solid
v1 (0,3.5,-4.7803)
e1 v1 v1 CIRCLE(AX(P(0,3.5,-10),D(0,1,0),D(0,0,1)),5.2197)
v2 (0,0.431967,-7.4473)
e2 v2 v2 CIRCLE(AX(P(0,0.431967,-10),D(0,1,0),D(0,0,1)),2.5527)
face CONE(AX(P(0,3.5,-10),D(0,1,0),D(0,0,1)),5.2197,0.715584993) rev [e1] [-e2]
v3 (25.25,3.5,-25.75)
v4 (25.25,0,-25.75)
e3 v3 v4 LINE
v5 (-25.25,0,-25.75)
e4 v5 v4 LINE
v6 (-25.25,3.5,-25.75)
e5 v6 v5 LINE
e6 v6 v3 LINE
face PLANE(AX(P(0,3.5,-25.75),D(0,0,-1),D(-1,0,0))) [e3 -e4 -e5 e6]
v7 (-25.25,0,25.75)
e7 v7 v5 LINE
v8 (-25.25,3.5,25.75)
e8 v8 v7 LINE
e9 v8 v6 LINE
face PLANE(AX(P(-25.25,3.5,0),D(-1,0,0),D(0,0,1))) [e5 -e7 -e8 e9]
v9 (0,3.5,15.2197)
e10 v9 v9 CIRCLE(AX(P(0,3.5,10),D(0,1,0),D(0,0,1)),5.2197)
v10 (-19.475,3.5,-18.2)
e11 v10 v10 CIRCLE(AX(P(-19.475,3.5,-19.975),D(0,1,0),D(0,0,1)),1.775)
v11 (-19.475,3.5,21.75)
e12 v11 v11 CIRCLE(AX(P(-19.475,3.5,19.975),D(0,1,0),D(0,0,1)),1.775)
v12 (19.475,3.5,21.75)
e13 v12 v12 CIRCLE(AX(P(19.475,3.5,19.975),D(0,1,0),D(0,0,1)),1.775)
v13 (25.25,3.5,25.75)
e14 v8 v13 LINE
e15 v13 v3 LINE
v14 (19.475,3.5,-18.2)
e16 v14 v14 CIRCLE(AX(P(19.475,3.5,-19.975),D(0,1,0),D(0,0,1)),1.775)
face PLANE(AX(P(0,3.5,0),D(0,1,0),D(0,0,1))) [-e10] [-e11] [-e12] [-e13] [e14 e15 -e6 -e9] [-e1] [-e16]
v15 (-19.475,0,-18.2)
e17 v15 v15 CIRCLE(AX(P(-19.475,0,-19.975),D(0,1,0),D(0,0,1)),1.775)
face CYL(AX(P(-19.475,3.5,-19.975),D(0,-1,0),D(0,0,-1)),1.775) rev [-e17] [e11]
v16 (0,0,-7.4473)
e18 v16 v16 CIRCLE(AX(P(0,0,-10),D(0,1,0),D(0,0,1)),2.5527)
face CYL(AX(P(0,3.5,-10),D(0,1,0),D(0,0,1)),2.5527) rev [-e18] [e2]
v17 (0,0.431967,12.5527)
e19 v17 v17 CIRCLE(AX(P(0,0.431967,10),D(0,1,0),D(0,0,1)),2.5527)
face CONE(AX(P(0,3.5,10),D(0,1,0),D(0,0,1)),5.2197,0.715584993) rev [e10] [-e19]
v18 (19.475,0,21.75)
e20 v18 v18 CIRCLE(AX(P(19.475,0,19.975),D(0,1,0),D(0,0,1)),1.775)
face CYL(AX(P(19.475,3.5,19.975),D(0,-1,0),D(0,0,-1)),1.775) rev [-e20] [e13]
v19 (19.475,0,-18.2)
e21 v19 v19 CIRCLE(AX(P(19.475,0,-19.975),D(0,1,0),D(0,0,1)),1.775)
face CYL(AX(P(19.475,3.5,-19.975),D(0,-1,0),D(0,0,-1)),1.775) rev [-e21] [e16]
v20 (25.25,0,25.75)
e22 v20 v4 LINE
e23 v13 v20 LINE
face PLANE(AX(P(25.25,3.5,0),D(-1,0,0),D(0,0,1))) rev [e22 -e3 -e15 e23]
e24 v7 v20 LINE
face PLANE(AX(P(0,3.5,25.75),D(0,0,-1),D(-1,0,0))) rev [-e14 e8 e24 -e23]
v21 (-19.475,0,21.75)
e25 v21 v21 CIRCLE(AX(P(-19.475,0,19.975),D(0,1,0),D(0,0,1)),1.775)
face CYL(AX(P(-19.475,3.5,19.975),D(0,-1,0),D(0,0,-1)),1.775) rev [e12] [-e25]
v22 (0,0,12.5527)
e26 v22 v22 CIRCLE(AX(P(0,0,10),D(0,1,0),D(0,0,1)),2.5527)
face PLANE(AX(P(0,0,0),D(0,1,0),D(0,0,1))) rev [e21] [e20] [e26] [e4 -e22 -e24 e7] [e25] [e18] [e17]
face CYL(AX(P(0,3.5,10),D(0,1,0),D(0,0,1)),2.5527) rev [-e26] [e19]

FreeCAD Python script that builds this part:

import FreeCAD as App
import Part
import Sketcher
from FreeCAD import Vector
Q = App.Units.Quantity

doc = App.newDocument("Part")
body = doc.addObject("PartDesign::Body", "Body")

# Sketch on XZ plane
sketch1 = body.newObject("Sketcher::SketchObject", "Sketch")
sketch1.AttachmentSupport = (doc.getObject("XZ_Plane"), [""])
sketch1.MapMode = "FlatFace"
sketch1.addGeometry(Part.LineSegment(Vector(-25.25, -25.75, 0), Vector(-25.25, 25.75, 0)), False)
sketch1.addGeometry(Part.LineSegment(Vector(-25.25, 25.75, 0), Vector(25.25, 25.75, 0)), False)
sketch1.addGeometry(Part.LineSegment(Vector(25.25, 25.75, 0), Vector(25.25, -25.75, 0)), False)
sketch1.addGeometry(Part.LineSegment(Vector(25.25, -25.75, 0), Vector(-25.25, -25.75, 0)), False)
sketch1.addGeometry(Part.Circle(Vector(-19.475, 19.975, 0), Vector(0, 0, 1), 1.775), False)
sketch1.addGeometry(Part.Circle(Vector(19.475, 19.975, 0), Vector(0, 0, 1), 1.775), False)
sketch1.addGeometry(Part.Circle(Vector(-19.475, -19.975, 0), Vector(0, 0, 1), 1.775), False)
sketch1.addGeometry(Part.Circle(Vector(19.475, -19.975, 0), Vector(0, 0, 1), 1.775), False)
sketch1.addConstraint(Sketcher.Constraint("Coincident", 0, 2, 1, 1))
sketch1.addConstraint(Sketcher.Constraint("Coincident", 1, 2, 2, 1))
sketch1.addConstraint(Sketcher.Constraint("Coincident", 2, 2, 3, 1))
sketch1.addConstraint(Sketcher.Constraint("Coincident", 3, 2, 0, 1))
sketch1.addConstraint(Sketcher.Constraint("Vertical", 0))
sketch1.addConstraint(Sketcher.Constraint("Horizontal", 1))
sketch1.addConstraint(Sketcher.Constraint("Vertical", 2))
sketch1.addConstraint(Sketcher.Constraint("Horizontal", 3))
sketch1.addConstraint(Sketcher.Constraint("Equal", 4, 5))
sketch1.addConstraint(Sketcher.Constraint("Equal", 5, 6))
sketch1.addConstraint(Sketcher.Constraint("Equal", 6, 7))
sketch1.addConstraint(Sketcher.Constraint("Symmetric", 5, 3, 6, 3, -1, 1))
sketch1.addConstraint(Sketcher.Constraint("Symmetric", 4, 3, 7, 3, -1, 1))
sketch1.addConstraint(Sketcher.Constraint("Symmetric", 0, 2, 2, 2, -1, 1))
sketch1.addConstraint(Sketcher.Constraint("Symmetric", 4, 3, 5, 3, -2))
sketch1.addConstraint(Sketcher.Constraint("Diameter", 4, Q("3.55 mm")))
sketch1.addConstraint(Sketcher.Constraint("DistanceX", 1, 1, 1, 2, Q("50.5 mm")))
sketch1.addConstraint(Sketcher.Constraint("DistanceY", 0, 1, 0, 2, Q("51.5 mm")))
sketch1.addConstraint(Sketcher.Constraint("DistanceX", 4, 3, 5, 3, Q("38.95 mm")))
sketch1.addConstraint(Sketcher.Constraint("DistanceY", 6, 3, 4, 3, Q("39.95 mm")))
pad1 = body.newObject("PartDesign::Pad", "Pad")
pad1.Profile = sketch1
pad1.Length = 3.5
pad1.Reversed = True

# Sketch on YZ plane
sketch2 = body.newObject("Sketcher::SketchObject", "Sketch001")
sketch2.AttachmentSupport = (doc.getObject("YZ_Plane"), [""])
sketch2.MapMode = "FlatFace"
sketch2.addGeometry(Part.LineSegment(Vector(0, -10, 0), Vector(3.5, -10, 0)), False)
sketch2.addGeometry(Part.LineSegment(Vector(3.5, -10, 0), Vector(3.5, -4.7803, 0)), False)
sketch2.addGeometry(Part.LineSegment(Vector(3.5, -4.7803, 0), Vector(0.431967, -7.4473, 0)), False)
sketch2.addGeometry(Part.LineSegment(Vector(0.431967, -7.4473, 0), Vector(0, -7.4473, 0)), False)
sketch2.addGeometry(Part.LineSegment(Vector(0, -7.4473, 0), Vector(0, -10, 0)), False)
sketch2.addGeometry(Part.LineSegment(Vector(3.5, -10, 0), Vector(0, -10, 0)), True)  # axis
sketch2.addConstraint(Sketcher.Constraint("Coincident", 0, 2, 1, 1))
sketch2.addConstraint(Sketcher.Constraint("Coincident", 1, 2, 2, 1))
sketch2.addConstraint(Sketcher.Constraint("Coincident", 2, 2, 3, 1))
sketch2.addConstraint(Sketcher.Constraint("Coincident", 3, 2, 4, 1))
sketch2.addConstraint(Sketcher.Constraint("Coincident", 4, 2, 0, 1))
sketch2.addConstraint(Sketcher.Constraint("Horizontal", 0))
sketch2.addConstraint(Sketcher.Constraint("Vertical", 1))
sketch2.addConstraint(Sketcher.Constraint("Horizontal", 3))
sketch2.addConstraint(Sketcher.Constraint("Vertical", 4))
sketch2.addConstraint(Sketcher.Constraint("Horizontal", 5))
sketch2.addConstraint(Sketcher.Constraint("Coincident", 5, 1, 0, 2))
sketch2.addConstraint(Sketcher.Constraint("PointOnObject", 3, 2, -2))
sketch2.addConstraint(Sketcher.Constraint("PointOnObject", 5, 2, -2))
sketch2.addConstraint(Sketcher.Constraint("Angle", 2, Q("-139 deg")))
sketch2.addConstraint(Sketcher.Constraint("DistanceX", 0, 1, 0, 2, Q("3.5 mm")))
sketch2.addConstraint(Sketcher.Constraint("DistanceY", 0, 2, -1, 1, Q("10 mm")))
sketch2.addConstraint(Sketcher.Constraint("DistanceY", 1, 1, 1, 2, Q("5.2197 mm")))
sketch2.addConstraint(Sketcher.Constraint("DistanceY", 4, 2, 4, 1, Q("2.5527 mm")))
groove = body.newObject("PartDesign::Groove", "Groove")
groove.Profile = sketch2
groove.ReferenceAxis = (sketch2, ["Axis0"])
groove.Angle = 360
doc.recompute()

linearpattern = body.newObject("PartDesign::LinearPattern", "LinearPattern")
linearpattern.Originals = [groove]
linearpattern.Direction = (doc.getObject("Z_Axis"), [""])
linearpattern.Mode = "offset"
linearpattern.Offset = 20
linearpattern.Occurrences = 2
body.Tip = linearpattern

doc.recompute()
